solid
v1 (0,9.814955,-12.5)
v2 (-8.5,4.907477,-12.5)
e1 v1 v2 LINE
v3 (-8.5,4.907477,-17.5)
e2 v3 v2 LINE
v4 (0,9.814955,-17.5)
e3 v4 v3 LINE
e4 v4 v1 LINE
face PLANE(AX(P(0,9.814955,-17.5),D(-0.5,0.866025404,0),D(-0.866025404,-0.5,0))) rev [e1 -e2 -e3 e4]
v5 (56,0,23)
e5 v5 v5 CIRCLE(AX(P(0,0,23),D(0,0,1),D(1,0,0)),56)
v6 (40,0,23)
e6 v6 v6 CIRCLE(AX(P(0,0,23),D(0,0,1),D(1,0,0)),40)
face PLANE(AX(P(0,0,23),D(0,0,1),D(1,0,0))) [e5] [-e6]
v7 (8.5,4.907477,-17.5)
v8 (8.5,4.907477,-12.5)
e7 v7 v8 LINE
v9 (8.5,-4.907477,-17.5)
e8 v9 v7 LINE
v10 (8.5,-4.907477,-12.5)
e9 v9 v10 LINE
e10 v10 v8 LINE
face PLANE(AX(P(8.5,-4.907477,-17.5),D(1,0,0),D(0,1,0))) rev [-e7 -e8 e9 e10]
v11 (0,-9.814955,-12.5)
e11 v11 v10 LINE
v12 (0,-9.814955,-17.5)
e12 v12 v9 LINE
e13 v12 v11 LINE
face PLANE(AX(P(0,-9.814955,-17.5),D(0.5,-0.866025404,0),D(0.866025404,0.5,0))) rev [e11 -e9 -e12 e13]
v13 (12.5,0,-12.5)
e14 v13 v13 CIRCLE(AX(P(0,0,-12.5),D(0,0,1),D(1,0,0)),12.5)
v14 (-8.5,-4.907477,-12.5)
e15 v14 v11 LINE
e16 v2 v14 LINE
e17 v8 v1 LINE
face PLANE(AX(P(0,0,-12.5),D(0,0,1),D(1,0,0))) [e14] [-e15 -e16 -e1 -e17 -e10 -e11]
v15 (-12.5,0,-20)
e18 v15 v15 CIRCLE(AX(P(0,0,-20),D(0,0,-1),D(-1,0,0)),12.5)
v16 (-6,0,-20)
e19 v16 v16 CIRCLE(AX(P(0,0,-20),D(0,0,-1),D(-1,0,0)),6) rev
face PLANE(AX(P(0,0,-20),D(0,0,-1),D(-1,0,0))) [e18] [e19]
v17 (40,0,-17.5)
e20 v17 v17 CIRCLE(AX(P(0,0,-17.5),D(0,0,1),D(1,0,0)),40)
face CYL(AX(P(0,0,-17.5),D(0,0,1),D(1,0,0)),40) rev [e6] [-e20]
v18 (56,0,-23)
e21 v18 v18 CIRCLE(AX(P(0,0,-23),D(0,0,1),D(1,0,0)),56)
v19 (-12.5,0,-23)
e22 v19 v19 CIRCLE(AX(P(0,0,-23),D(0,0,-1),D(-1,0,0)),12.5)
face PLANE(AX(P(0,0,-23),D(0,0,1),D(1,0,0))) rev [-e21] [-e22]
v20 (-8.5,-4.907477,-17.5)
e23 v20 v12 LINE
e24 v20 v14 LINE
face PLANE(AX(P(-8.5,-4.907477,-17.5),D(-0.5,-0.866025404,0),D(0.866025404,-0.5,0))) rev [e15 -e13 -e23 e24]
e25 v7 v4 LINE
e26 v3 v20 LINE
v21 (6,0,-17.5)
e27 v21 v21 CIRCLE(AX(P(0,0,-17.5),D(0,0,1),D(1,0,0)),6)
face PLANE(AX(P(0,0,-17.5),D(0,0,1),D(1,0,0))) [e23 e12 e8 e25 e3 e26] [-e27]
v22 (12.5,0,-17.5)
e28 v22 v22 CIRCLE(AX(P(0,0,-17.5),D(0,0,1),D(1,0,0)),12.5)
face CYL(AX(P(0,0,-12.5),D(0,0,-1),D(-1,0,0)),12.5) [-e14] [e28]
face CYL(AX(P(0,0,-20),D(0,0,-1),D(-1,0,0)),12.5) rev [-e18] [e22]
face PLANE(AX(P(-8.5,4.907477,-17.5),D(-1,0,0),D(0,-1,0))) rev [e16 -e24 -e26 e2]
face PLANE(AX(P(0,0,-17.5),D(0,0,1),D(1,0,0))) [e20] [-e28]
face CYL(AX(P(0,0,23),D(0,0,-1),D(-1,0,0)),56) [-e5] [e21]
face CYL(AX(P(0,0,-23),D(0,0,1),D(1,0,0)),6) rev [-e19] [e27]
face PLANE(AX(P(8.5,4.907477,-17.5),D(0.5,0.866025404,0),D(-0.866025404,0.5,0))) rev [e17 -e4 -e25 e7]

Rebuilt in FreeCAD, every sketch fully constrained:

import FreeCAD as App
import Part
import Sketcher

V = App.Vector
Q = App.Units.Quantity

doc = App.newDocument("Part")
body = doc.addObject("PartDesign::Body", "Body")

sketch1 = body.newObject("Sketcher::SketchObject", "Sketch")
sketch1.AttachmentSupport = (doc.getObject("XY_Plane"), [""])
sketch1.MapMode = "FlatFace"
sketch1.addGeometry(Part.Circle(V(0, 0, 0), V(0, 0, 1), 56), False)
sketch1.addConstraint(Sketcher.Constraint("Coincident", 0, 3, -1, 1))
sketch1.addConstraint(Sketcher.Constraint("Diameter", 0, 112.0))
pad1 = body.newObject("PartDesign::Pad", "Pad")
pad1.Profile = sketch1
pad1.Length = 46
pad1.Midplane = True

sketch2 = body.newObject("Sketcher::SketchObject", "Sketch001")
sketch2.AttachmentSupport = (doc.getObject("XY_Plane"), [""])
sketch2.MapMode = "FlatFace"
sketch2.AttachmentOffset = App.Placement(V(0, 0, 23), App.Rotation())
sketch2.addGeometry(Part.Circle(V(0, 0, 0), V(0, 0, 1), 40), False)
sketch2.addConstraint(Sketcher.Constraint("Coincident", 0, 3, -1, 1))
sketch2.addConstraint(Sketcher.Constraint("Diameter", 0, 80.0))
pocket1 = body.newObject("PartDesign::Pocket", "Pocket")
pocket1.Profile = sketch2
pocket1.Length = 40.5

sketch3 = body.newObject("Sketcher::SketchObject", "Sketch002")
sketch3.AttachmentSupport = (doc.getObject("XY_Plane"), [""])
sketch3.MapMode = "FlatFace"
sketch3.AttachmentOffset = App.Placement(V(0, 0, -17.5), App.Rotation())
sketch3.addGeometry(Part.Circle(V(0, 0, 0), V(0, 0, 1), 12), False)
sketch3.addConstraint(Sketcher.Constraint("Coincident", 0, 3, -1, 1))
sketch3.addConstraint(Sketcher.Constraint("Diameter", 0, 25.0))
pad2 = body.newObject("PartDesign::Pad", "Pad001")
pad2.Profile = sketch3
pad2.Length = 5

sketch4 = body.newObject("Sketcher::SketchObject", "Sketch003")
sketch4.AttachmentSupport = (doc.getObject("XY_Plane"), [""])
sketch4.MapMode = "FlatFace"
sketch4.AttachmentOffset = App.Placement(V(0, 0, -12.5), App.Rotation())
sketch4.addGeometry(Part.LineSegment(V(0, 10, 0), V(-8, 5, 0)), False)
sketch4.addGeometry(Part.LineSegment(V(-8, 5, 0), V(-8, -5, 0)), False)
sketch4.addGeometry(Part.LineSegment(V(-8, -5, 0), V(0, -10, 0)), False)
sketch4.addGeometry(Part.LineSegment(V(0, -10, 0), V(8, -5, 0)), False)
sketch4.addGeometry(Part.LineSegment(V(8, -5, 0), V(8, 5, 0)), False)
sketch4.addGeometry(Part.LineSegment(V(8, 5, 0), V(0, 10, 0)), False)
sketch4.addConstraint(Sketcher.Constraint("Coincident", 0, 2, 1, 1))
sketch4.addConstraint(Sketcher.Constraint("Coincident", 1, 2, 2, 1))
sketch4.addConstraint(Sketcher.Constraint("Coincident", 2, 2, 3, 1))
sketch4.addConstraint(Sketcher.Constraint("Coincident", 3, 2, 4, 1))
sketch4.addConstraint(Sketcher.Constraint("Coincident", 4, 2, 5, 1))
sketch4.addConstraint(Sketcher.Constraint("Coincident", 5, 2, 0, 1))
sketch4.addConstraint(Sketcher.Constraint("Vertical", 1))
sketch4.addConstraint(Sketcher.Constraint("Vertical", 4))
sketch4.addConstraint(Sketcher.Constraint("Symmetric", 0, 2, 3, 2, -1, 1))
sketch4.addConstraint(Sketcher.Constraint("Symmetric", 2, 2, 5, 2, -1, 1))
sketch4.addConstraint(Sketcher.Constraint("PointOnObject", 2, 2, -2))
sketch4.addConstraint(Sketcher.Constraint("Parallel", 2, 5))
sketch4.addConstraint(Sketcher.Constraint("Horizontal", 1, 2, 3, 2))
sketch4.addConstraint(Sketcher.Constraint("Angle", 0, Q("-150 deg")))
sketch4.addConstraint(Sketcher.Constraint("DistanceX", 1, 2, 3, 2, 17.0))
sketch4.addConstraint(Sketcher.Constraint("DistanceY", 1, 2, 1, 1, 9.814955))
pocket2 = body.newObject("PartDesign::Pocket", "Pocket001")
pocket2.Profile = sketch4
pocket2.Length = 5

sketch5 = body.newObject("Sketcher::SketchObject", "Sketch004")
sketch5.AttachmentSupport = (doc.getObject("XY_Plane"), [""])
sketch5.MapMode = "FlatFace"
sketch5.AttachmentOffset = App.Placement(V(0, 0, -17.5), App.Rotation())
sketch5.addGeometry(Part.Circle(V(0, 0, 0), V(0, 0, 1), 6), False)
sketch5.addConstraint(Sketcher.Constraint("Coincident", 0, 3, -1, 1))
sketch5.addConstraint(Sketcher.Constraint("Diameter", 0, 12.0))
pocket3 = body.newObject("PartDesign::Pocket", "Pocket002")
pocket3.Profile = sketch5
pocket3.Type = "ThroughAll"

sketch6 = body.newObject("Sketcher::SketchObject", "Sketch005")
sketch6.AttachmentSupport = (doc.getObject("XY_Plane"), [""])
sketch6.MapMode = "FlatFace"
sketch6.AttachmentOffset = App.Placement(V(0, 0, -23), App.Rotation())
sketch6.addGeometry(Part.Circle(V(0, 0, 0), V(0, 0, 1), 12), False)
sketch6.addConstraint(Sketcher.Constraint("Coincident", 0, 3, -1, 1))
sketch6.addConstraint(Sketcher.Constraint("Diameter", 0, 25.0))
pocket4 = body.newObject("PartDesign::Pocket", "Pocket003")
pocket4.Profile = sketch6
pocket4.Length = 3
pocket4.Reversed = True

doc.recompute()
